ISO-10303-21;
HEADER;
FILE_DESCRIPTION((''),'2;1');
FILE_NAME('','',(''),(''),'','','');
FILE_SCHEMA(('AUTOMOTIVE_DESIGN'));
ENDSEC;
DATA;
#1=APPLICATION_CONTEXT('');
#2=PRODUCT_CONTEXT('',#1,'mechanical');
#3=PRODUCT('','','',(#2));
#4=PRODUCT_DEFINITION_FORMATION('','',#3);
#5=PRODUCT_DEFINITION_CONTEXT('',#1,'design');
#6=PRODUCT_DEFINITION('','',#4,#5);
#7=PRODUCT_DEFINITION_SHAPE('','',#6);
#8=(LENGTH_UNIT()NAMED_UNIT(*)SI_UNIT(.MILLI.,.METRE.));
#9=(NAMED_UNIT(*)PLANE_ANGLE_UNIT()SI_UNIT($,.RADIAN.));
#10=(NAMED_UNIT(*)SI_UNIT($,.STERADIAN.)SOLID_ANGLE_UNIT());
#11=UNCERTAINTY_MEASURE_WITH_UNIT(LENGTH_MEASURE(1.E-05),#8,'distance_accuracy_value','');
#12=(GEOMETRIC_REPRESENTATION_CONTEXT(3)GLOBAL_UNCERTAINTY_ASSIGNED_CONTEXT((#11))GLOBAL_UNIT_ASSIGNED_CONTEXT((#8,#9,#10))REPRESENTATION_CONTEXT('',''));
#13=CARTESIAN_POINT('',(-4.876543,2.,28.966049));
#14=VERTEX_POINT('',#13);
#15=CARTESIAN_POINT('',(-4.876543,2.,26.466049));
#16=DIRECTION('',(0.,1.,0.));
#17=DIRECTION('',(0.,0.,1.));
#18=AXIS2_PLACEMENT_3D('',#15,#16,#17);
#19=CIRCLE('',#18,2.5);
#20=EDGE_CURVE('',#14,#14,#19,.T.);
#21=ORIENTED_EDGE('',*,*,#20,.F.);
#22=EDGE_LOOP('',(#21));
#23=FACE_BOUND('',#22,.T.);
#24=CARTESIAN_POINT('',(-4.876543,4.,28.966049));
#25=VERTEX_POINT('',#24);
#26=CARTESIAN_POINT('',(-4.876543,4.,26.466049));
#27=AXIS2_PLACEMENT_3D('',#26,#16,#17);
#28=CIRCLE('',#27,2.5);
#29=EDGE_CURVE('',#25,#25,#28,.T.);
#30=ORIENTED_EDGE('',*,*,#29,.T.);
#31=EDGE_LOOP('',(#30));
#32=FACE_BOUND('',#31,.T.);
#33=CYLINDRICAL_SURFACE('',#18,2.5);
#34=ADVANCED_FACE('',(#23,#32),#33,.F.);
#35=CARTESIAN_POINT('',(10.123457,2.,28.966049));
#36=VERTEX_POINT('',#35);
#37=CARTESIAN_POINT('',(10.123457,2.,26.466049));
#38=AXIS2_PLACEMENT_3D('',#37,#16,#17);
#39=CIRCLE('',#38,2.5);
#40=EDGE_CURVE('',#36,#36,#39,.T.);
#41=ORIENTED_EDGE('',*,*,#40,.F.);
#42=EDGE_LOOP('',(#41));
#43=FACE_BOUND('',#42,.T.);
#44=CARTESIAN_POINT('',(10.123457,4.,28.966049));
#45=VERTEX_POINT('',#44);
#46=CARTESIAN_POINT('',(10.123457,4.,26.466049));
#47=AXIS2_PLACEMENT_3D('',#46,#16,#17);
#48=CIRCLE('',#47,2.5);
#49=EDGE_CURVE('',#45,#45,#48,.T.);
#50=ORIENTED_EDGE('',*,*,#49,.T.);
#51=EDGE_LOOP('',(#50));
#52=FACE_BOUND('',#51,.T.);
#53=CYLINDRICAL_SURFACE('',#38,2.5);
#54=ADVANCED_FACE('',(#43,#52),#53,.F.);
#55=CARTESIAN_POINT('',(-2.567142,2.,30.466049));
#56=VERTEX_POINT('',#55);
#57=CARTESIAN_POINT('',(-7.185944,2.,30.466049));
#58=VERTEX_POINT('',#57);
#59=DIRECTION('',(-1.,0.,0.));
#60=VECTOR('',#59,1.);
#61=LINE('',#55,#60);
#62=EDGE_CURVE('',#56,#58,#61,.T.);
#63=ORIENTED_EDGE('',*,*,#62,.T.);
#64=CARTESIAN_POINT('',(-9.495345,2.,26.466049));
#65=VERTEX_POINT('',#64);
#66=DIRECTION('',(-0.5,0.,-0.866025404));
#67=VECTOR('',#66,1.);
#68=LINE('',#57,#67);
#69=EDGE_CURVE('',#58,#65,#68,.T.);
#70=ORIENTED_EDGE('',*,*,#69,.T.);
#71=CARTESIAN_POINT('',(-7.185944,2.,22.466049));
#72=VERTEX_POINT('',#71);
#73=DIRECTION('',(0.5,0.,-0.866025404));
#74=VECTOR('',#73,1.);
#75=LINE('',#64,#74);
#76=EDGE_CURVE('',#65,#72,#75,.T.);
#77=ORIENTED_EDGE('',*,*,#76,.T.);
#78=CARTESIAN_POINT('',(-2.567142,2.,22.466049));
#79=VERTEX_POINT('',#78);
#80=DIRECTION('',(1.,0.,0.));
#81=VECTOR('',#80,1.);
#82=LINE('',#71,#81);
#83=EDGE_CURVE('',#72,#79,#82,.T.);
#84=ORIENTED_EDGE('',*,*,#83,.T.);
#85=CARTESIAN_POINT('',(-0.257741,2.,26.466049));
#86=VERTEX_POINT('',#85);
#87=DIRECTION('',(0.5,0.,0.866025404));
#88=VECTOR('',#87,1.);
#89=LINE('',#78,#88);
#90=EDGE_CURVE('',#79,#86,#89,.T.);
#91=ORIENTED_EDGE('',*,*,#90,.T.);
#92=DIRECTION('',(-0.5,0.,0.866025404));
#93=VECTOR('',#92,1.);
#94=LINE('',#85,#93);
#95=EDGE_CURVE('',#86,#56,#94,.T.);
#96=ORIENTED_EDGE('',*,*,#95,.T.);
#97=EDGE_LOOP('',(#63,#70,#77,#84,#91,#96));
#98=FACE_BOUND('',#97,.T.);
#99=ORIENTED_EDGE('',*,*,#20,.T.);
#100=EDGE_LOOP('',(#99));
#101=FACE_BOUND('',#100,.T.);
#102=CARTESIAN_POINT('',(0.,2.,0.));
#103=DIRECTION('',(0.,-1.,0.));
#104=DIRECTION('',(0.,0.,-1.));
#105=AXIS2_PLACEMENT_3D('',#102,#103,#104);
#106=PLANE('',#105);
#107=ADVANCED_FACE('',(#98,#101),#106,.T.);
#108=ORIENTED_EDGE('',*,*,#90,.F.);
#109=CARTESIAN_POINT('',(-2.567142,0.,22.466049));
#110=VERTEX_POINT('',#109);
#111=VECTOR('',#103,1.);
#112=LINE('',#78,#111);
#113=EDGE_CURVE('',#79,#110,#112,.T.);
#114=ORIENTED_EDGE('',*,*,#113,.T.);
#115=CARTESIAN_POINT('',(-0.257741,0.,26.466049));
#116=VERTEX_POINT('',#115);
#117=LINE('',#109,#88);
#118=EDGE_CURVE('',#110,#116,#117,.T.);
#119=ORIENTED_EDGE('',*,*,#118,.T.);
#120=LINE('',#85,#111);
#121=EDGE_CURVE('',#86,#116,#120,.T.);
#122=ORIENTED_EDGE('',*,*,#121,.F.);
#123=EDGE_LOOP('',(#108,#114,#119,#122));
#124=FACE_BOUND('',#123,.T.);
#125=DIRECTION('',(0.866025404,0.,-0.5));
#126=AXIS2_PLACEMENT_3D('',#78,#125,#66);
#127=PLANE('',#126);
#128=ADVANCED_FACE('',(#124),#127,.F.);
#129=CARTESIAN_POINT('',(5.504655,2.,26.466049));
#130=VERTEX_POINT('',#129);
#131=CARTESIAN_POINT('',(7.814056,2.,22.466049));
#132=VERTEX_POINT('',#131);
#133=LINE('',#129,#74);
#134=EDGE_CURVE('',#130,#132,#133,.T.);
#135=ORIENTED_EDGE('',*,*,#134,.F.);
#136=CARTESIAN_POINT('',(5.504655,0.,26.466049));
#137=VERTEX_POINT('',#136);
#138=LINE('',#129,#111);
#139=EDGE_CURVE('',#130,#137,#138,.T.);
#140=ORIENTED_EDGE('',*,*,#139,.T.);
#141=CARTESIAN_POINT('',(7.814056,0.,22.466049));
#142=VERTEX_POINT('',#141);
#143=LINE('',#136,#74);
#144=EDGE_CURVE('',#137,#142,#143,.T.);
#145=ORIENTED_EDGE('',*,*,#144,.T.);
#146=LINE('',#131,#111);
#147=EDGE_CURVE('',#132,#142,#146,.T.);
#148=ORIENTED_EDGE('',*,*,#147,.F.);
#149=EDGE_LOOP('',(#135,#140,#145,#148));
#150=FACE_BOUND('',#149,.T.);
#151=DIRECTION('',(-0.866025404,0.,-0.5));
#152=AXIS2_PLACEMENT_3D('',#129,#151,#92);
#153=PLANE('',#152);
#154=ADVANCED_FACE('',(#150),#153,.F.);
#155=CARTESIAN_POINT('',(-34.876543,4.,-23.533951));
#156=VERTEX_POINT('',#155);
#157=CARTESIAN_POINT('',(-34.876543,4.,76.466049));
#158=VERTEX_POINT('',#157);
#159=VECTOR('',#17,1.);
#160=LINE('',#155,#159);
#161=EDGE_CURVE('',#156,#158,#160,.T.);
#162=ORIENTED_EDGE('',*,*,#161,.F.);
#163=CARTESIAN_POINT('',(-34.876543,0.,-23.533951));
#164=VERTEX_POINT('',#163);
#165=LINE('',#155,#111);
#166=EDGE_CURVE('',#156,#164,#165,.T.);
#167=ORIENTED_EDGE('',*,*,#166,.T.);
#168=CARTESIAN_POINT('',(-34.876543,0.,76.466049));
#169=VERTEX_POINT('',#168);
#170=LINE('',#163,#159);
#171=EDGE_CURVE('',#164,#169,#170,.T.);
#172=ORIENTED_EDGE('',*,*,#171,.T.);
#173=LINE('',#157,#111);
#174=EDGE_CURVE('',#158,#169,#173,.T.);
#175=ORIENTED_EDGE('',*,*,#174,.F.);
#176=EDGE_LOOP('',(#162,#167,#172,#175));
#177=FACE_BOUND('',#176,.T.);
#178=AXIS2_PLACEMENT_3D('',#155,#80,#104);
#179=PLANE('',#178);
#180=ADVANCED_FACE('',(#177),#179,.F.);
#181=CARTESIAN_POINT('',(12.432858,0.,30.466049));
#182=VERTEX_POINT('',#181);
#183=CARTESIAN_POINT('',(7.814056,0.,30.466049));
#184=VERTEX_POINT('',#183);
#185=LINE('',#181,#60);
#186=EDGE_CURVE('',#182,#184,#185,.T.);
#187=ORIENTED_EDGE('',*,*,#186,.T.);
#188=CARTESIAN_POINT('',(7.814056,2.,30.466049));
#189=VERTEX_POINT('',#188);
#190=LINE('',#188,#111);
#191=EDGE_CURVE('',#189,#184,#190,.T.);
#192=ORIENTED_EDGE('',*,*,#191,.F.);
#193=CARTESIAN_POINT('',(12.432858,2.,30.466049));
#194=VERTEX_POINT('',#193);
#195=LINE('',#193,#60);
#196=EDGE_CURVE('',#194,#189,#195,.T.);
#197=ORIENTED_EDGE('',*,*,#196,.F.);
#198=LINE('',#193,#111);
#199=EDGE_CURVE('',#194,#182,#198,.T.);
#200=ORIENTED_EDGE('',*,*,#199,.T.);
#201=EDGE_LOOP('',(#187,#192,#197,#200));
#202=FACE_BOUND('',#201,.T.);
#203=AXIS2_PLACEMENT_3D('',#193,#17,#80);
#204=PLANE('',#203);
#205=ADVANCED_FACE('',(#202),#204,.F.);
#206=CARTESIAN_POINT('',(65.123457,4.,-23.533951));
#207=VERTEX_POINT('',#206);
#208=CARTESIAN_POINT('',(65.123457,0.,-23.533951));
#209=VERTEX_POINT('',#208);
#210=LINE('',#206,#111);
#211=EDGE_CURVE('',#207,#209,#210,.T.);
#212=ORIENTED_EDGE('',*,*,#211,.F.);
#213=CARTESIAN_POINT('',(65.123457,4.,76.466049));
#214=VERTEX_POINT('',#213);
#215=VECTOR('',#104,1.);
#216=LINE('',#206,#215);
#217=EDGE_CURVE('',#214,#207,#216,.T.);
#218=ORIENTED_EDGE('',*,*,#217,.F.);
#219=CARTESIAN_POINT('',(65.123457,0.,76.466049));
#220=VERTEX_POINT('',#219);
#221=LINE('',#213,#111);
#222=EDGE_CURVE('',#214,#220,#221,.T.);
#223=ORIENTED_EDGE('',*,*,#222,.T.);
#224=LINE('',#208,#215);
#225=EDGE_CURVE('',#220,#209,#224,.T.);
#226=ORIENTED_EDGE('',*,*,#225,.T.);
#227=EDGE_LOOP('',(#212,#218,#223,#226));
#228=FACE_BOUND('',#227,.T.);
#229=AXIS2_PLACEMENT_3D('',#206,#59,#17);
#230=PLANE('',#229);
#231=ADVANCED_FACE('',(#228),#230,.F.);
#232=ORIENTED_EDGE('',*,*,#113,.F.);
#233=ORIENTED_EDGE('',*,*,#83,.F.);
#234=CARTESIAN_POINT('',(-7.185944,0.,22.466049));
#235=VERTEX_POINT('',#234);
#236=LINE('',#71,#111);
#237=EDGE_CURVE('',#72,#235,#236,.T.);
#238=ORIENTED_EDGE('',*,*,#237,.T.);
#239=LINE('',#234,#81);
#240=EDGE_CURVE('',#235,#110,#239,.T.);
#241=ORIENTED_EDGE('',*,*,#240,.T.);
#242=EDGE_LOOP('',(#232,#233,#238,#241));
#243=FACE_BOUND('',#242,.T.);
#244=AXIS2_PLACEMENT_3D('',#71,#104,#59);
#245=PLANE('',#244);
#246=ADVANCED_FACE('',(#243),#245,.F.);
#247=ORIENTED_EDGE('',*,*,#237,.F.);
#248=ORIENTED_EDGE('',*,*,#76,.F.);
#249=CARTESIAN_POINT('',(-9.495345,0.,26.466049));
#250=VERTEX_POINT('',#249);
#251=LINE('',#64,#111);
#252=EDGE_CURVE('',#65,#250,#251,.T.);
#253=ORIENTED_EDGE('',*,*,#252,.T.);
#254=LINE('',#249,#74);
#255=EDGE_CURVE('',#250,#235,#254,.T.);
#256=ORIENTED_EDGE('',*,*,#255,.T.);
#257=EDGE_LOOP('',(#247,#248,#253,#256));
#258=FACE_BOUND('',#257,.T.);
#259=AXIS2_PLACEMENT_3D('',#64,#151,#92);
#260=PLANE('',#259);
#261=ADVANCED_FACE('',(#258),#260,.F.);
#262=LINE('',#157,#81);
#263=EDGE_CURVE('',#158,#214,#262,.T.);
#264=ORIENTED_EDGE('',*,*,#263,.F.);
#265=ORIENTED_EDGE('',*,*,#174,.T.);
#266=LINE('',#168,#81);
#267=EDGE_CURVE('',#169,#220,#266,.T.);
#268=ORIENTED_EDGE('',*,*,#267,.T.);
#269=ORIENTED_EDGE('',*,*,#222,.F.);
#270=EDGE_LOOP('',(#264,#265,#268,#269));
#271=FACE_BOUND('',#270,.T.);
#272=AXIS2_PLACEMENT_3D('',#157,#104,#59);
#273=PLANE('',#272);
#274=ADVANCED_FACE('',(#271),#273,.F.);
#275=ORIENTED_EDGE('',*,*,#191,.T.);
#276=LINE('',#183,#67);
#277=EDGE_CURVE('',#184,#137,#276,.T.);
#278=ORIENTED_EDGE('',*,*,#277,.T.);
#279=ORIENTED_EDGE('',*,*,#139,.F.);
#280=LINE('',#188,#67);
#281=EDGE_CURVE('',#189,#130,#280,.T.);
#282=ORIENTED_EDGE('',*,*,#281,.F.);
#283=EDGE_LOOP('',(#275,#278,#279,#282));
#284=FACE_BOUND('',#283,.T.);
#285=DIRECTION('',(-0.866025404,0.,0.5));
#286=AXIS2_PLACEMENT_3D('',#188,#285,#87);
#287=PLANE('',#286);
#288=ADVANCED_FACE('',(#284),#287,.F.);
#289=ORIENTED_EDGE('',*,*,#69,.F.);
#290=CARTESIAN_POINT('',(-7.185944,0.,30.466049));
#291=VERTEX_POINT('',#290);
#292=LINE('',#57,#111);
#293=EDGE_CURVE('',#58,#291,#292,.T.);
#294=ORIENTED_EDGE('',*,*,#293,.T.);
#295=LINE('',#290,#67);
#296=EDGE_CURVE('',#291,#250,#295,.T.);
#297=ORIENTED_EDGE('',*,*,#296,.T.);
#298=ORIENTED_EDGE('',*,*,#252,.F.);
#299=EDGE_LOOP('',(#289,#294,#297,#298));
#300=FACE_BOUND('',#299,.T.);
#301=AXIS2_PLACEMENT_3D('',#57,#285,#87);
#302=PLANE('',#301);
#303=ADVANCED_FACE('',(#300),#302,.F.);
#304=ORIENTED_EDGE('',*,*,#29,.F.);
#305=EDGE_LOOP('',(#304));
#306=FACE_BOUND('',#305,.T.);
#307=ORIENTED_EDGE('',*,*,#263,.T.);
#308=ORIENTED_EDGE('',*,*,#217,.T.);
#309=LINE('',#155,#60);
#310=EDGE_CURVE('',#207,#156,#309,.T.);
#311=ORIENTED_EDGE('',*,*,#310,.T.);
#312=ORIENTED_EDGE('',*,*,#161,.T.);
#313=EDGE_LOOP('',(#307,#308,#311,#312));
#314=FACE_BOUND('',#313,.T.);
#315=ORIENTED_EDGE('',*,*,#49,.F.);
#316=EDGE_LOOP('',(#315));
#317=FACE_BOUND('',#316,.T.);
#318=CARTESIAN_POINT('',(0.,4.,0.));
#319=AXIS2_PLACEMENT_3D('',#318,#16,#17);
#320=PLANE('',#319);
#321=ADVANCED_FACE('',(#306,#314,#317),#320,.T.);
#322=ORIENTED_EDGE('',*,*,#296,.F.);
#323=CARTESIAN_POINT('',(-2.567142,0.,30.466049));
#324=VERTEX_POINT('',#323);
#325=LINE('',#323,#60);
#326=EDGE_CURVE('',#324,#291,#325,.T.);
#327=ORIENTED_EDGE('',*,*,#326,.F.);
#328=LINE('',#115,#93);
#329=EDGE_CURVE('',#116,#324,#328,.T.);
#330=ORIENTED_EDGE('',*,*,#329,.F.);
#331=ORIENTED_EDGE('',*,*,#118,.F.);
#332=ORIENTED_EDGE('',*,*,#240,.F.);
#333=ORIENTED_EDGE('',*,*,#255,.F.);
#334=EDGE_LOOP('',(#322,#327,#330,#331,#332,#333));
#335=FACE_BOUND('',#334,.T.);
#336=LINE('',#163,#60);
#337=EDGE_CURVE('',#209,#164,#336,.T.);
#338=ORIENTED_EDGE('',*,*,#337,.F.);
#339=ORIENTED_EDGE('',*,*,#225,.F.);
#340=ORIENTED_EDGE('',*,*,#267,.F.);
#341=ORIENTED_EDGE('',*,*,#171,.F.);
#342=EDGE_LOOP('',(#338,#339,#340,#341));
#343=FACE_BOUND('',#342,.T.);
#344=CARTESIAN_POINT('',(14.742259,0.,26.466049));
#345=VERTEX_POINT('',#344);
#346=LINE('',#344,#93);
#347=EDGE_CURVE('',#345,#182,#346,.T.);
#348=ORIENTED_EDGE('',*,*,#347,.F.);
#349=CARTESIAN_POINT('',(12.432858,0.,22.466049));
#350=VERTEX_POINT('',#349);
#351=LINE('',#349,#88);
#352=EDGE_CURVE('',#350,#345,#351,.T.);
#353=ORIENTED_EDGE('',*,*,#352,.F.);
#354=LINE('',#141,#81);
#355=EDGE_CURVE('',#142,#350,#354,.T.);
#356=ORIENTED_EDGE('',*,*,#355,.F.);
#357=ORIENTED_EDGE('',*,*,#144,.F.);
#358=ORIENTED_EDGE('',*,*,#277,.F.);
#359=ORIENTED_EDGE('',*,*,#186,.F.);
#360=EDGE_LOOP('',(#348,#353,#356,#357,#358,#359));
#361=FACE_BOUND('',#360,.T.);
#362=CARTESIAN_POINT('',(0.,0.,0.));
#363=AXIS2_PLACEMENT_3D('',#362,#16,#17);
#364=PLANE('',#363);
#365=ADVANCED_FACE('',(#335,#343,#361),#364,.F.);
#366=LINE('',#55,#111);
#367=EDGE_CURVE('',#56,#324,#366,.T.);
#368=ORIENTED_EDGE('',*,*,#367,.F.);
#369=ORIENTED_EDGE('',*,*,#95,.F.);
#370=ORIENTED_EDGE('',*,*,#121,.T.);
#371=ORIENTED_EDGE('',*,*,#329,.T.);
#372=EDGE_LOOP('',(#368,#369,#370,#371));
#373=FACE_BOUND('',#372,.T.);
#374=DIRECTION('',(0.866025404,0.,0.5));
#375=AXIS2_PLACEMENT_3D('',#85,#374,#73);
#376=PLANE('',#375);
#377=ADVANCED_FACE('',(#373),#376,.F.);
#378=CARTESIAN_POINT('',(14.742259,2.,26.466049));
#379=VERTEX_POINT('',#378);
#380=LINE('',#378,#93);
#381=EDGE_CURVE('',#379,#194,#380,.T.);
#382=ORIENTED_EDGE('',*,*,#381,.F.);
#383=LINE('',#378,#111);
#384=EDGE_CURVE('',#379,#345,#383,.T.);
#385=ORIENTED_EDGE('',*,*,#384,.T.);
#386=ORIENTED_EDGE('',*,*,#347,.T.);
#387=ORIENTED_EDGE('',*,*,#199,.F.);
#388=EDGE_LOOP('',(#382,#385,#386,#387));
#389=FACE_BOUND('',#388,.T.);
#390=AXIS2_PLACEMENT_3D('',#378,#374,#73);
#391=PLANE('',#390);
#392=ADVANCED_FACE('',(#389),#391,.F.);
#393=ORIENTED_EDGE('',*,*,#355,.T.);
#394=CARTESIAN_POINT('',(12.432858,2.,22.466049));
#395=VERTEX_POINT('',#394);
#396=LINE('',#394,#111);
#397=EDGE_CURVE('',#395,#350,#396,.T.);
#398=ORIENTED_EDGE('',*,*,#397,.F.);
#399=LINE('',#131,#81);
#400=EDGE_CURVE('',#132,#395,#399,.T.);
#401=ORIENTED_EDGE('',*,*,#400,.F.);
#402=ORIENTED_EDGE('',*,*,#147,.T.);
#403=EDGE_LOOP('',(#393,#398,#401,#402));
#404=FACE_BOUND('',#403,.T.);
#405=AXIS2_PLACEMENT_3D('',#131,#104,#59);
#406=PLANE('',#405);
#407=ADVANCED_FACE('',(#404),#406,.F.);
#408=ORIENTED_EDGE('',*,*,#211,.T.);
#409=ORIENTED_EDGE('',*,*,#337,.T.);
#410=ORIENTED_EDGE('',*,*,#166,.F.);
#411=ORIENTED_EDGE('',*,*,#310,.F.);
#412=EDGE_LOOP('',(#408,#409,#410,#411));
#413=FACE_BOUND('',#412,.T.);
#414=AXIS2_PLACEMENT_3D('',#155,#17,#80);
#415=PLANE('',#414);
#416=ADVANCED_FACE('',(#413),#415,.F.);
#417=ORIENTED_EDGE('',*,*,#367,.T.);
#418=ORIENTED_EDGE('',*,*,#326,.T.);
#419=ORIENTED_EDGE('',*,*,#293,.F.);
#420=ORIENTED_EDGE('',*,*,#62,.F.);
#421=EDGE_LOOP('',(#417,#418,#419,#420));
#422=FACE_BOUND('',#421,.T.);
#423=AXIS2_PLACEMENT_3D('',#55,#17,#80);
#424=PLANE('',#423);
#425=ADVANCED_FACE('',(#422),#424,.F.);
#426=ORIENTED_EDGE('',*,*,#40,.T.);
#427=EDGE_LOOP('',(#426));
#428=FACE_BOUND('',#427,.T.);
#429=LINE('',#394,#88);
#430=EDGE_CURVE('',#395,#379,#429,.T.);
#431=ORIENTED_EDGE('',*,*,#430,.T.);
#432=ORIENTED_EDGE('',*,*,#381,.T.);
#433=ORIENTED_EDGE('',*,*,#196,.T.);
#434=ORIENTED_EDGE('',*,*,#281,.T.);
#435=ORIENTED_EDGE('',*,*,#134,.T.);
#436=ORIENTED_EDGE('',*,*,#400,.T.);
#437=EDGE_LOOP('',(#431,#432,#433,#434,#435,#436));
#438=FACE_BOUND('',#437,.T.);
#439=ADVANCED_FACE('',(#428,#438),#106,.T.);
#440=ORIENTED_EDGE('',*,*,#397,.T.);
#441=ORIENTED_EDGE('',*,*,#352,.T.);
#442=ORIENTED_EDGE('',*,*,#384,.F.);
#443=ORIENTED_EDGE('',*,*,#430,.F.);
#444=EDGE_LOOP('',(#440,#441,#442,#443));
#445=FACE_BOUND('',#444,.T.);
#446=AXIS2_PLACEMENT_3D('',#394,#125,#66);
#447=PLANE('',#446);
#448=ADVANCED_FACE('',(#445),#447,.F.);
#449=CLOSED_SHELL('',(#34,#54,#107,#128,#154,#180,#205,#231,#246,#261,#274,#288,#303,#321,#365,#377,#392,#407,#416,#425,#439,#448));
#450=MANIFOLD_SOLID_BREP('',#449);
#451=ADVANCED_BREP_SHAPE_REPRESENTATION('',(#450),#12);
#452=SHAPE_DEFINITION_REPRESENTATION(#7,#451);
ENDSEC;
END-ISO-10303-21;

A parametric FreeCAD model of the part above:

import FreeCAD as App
import Part
import Sketcher
Q = App.Units.Quantity


def add_polygon(sketch, points):
    """Adds a closed chain of lines whose ends are joined by coincident constraints."""
    first, n = sketch.GeometryCount, len(points)
    for a, b in zip(points, points[1:] + points[:1]):
        sketch.addGeometry(Part.LineSegment(App.Vector(*a, 0), App.Vector(*b, 0)), False)
    for i in range(n):
        sketch.addConstraint(Sketcher.Constraint("Coincident", first + i, 2, first + (i + 1) % n, 1))

doc = App.newDocument("Part")
params = doc.addObject("Spreadsheet::Sheet", "Params")
for row, (alias, value) in enumerate([
    ("sketch1_width", "100 mm"),
    ("pad1_length", "4 mm"),
    ("sketch2_diameter", "5 mm"),
    ("pocket1_length", "2 mm"),
    ("pocket2_length", "2 mm"),
], start=1):
    params.set(f"A{row}", alias)
    params.set(f"B{row}", "=" + value)
    params.setAlias(f"B{row}", alias)

body = doc.addObject("PartDesign::Body", "Body")

# Sketch on XZ plane
sketch1 = doc.addObject("Sketcher::SketchObject", "Sketch")
body.addObject(sketch1)
sketch1.AttachmentSupport = (doc.XZ_Plane, [""])
sketch1.MapMode = "FlatFace"
add_polygon(sketch1, [(-34.876543, -23.533951), (-34.876543, 76.466049), (65.123457, 76.466049), (65.123457, -23.533951)])  # lines 0-3
sketch1.addConstraint(Sketcher.Constraint("Vertical", 0))
sketch1.addConstraint(Sketcher.Constraint("Horizontal", 1))
sketch1.addConstraint(Sketcher.Constraint("Vertical", 2))
sketch1.addConstraint(Sketcher.Constraint("Horizontal", 3))
sketch1.addConstraint(Sketcher.Constraint("Equal", 3, 0))
sketch1.addConstraint(Sketcher.Constraint("DistanceX", 1, 1, 1, 2, 100.0))
sketch1.addConstraint(Sketcher.Constraint("DistanceY", -1, 1, 0, 2, 76.466049))
sketch1.addConstraint(Sketcher.Constraint("DistanceX", 0, 2, -1, 1, 34.876543))
sketch1.setExpression("Constraints[9]", "Params.sketch1_width")
pad1 = doc.addObject("PartDesign::Pad", "Pad")
body.addObject(pad1)
pad1.Profile = sketch1
pad1.setExpression("Length", "Params.pad1_length")
pad1.Reversed = True

# Sketch on XZ plane
sketch2 = doc.addObject("Sketcher::SketchObject", "Sketch001")
body.addObject(sketch2)
sketch2.AttachmentSupport = (doc.XZ_Plane, [""])
sketch2.MapMode = "FlatFace"
sketch2.AttachmentOffset = App.Placement(App.Vector(0, 0, -4), App.Rotation())
sketch2.addGeometry(Part.Circle(App.Vector(-4.876543, 26.466049, 0), App.Vector(0, 0, 1), 2.5), False)
sketch2.addGeometry(Part.Circle(App.Vector(10.123457, 26.466049, 0), App.Vector(0, 0, 1), 2.5), False)
sketch2.addConstraint(Sketcher.Constraint("Equal", 0, 1))
sketch2.addConstraint(Sketcher.Constraint("Horizontal", 0, 3, 1, 3))
sketch2.addConstraint(Sketcher.Constraint("Diameter", 0, 5.0))
sketch2.addConstraint(Sketcher.Constraint("DistanceX", 0, 3, 1, 3, 15.0))
sketch2.addConstraint(Sketcher.Constraint("DistanceY", -1, 1, 0, 3, 26.466049))
sketch2.addConstraint(Sketcher.Constraint("DistanceX", 0, 3, -1, 1, 4.876543))
sketch2.setExpression("Constraints[2]", "Params.sketch2_diameter")
pocket1 = doc.addObject("PartDesign::Pocket", "Pocket")
body.addObject(pocket1)
pocket1.Profile = sketch2
pocket1.setExpression("Length", "Params.pocket1_length")
pocket1.Reversed = True

# Sketch on XZ plane
sketch3 = doc.addObject("Sketcher::SketchObject", "Sketch002")
body.addObject(sketch3)
sketch3.AttachmentSupport = (doc.XZ_Plane, [""])
sketch3.MapMode = "FlatFace"
add_polygon(sketch3, [(-0.257741, 26.466049), (-2.567142, 30.466049), (-7.185944, 30.466049), (-9.495345, 26.466049), (-7.185944, 22.466049), (-2.567142, 22.466049)])  # lines 0-5
add_polygon(sketch3, [(14.742259, 26.466049), (12.432858, 30.466049), (7.814056, 30.466049), (5.504655, 26.466049), (7.814056, 22.466049), (12.432858, 22.466049)])  # lines 6-11
sketch3.addConstraint(Sketcher.Constraint("Horizontal", 1))
sketch3.addConstraint(Sketcher.Constraint("Horizontal", 4))
sketch3.addConstraint(Sketcher.Constraint("Horizontal", 7))
sketch3.addConstraint(Sketcher.Constraint("Horizontal", 10))
sketch3.addConstraint(Sketcher.Constraint("Parallel", 0, 3))
sketch3.addConstraint(Sketcher.Constraint("Parallel", 2, 5))
sketch3.addConstraint(Sketcher.Constraint("Parallel", 3, 6))
sketch3.addConstraint(Sketcher.Constraint("Parallel", 5, 8))
sketch3.addConstraint(Sketcher.Constraint("Parallel", 6, 9))
sketch3.addConstraint(Sketcher.Constraint("Parallel", 8, 11))
sketch3.addConstraint(Sketcher.Constraint("Horizontal", 2, 2, 5, 2))
sketch3.addConstraint(Sketcher.Constraint("Horizontal", 1, 2, 6, 2))
sketch3.addConstraint(Sketcher.Constraint("Horizontal", 5, 2, 8, 2))
sketch3.addConstraint(Sketcher.Constraint("Horizontal", 4, 2, 9, 2))
sketch3.addConstraint(Sketcher.Constraint("Horizontal", 8, 2, 11, 2))
sketch3.addConstraint(Sketcher.Constraint("Vertical", 1, 2, 3, 2))
sketch3.addConstraint(Sketcher.Constraint("Vertical", 0, 2, 4, 2))
sketch3.addConstraint(Sketcher.Constraint("Equal", 4, 7))
sketch3.addConstraint(Sketcher.Constraint("Angle", 0, Q("120 deg")))
sketch3.addConstraint(Sketcher.Constraint("DistanceY", 2, 2, 1, 2, 4.0))
sketch3.addConstraint(Sketcher.Constraint("DistanceX", 0, 2, 6, 2, 15.0))
sketch3.addConstraint(Sketcher.Constraint("DistanceX", 1, 2, 1, 1, 4.618802))
sketch3.addConstraint(Sketcher.Constraint("DistanceY", -1, 1, 0, 2, 30.466049))
sketch3.addConstraint(Sketcher.Constraint("DistanceX", 5, 2, -1, 1, 0.257741))
pocket2 = doc.addObject("PartDesign::Pocket", "Pocket001")
body.addObject(pocket2)
pocket2.Profile = sketch3
pocket2.setExpression("Length", "Params.pocket2_length")

doc.recompute()
